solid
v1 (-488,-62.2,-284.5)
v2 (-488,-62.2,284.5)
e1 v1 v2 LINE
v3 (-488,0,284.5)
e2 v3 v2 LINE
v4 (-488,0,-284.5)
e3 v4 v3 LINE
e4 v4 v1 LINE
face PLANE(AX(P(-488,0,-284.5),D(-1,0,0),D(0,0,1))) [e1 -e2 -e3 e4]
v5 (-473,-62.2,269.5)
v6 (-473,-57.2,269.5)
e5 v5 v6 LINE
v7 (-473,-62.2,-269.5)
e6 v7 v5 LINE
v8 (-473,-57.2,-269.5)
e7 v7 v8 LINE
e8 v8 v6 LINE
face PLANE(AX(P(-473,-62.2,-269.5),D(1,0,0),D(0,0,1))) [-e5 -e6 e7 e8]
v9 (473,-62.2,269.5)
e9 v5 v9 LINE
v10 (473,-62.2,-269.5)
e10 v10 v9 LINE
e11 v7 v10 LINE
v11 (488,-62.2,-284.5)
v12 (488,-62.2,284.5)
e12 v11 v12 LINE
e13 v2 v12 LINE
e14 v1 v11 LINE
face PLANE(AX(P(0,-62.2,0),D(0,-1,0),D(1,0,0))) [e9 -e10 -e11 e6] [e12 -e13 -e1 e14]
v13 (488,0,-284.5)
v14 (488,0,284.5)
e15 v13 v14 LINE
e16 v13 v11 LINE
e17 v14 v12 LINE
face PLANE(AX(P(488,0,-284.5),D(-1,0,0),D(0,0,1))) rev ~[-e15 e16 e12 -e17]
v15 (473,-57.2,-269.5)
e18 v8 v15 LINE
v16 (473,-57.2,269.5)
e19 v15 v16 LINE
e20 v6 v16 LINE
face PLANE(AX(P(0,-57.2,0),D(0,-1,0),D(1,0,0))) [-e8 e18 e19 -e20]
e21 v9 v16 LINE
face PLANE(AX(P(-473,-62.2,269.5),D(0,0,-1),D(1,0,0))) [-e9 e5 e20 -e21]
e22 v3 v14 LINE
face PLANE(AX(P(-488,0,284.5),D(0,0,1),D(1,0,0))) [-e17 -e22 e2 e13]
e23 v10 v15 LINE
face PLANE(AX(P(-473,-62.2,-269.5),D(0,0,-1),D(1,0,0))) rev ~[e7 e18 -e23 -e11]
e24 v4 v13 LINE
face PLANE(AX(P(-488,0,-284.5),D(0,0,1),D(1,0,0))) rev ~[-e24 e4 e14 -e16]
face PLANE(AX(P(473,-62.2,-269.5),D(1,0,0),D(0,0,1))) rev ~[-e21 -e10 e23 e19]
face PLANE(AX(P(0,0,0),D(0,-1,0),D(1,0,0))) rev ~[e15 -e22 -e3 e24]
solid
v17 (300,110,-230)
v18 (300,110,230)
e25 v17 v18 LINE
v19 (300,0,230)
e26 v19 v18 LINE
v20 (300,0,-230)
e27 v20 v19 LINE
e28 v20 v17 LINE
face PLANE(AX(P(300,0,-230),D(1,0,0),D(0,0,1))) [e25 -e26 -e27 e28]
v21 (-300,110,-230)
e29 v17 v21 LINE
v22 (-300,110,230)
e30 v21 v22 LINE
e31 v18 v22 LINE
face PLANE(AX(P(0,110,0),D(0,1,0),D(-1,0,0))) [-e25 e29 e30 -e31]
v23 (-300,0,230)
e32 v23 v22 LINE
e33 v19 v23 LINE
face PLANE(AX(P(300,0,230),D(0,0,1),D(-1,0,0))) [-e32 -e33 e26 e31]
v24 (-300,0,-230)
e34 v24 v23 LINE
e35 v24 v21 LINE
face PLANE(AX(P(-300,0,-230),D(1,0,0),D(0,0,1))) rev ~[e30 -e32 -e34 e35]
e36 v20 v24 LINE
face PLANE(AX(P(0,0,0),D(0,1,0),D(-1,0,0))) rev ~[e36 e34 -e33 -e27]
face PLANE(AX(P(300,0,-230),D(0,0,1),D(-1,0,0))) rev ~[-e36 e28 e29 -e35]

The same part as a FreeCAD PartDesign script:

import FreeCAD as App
import Part
import Sketcher

V = App.Vector

doc = App.newDocument("Part")
body = doc.addObject("PartDesign::Body", "Body")

# Sketch on XZ plane
sketch1 = body.newObject("Sketcher::SketchObject", "Sketch")
sketch1.AttachmentSupport = (doc.getObject("XZ_Plane"), [""])
sketch1.MapMode = "FlatFace"
sketch1.addGeometry(Part.LineSegment(V(-488, 284, 0), V(-488, -284, 0)), False)
sketch1.addGeometry(Part.LineSegment(V(-488, -284, 0), V(488, -284, 0)), False)
sketch1.addGeometry(Part.LineSegment(V(488, -284, 0), V(488, 284, 0)), False)
sketch1.addGeometry(Part.LineSegment(V(488, 284, 0), V(-488, 284, 0)), False)
sketch1.addConstraint(Sketcher.Constraint("Coincident", 0, 2, 1, 1))
sketch1.addConstraint(Sketcher.Constraint("Coincident", 1, 2, 2, 1))
sketch1.addConstraint(Sketcher.Constraint("Coincident", 2, 2, 3, 1))
sketch1.addConstraint(Sketcher.Constraint("Coincident", 3, 2, 0, 1))
sketch1.addConstraint(Sketcher.Constraint("Vertical", 0))
sketch1.addConstraint(Sketcher.Constraint("Horizontal", 1))
sketch1.addConstraint(Sketcher.Constraint("Vertical", 2))
sketch1.addConstraint(Sketcher.Constraint("Horizontal", 3))
sketch1.addConstraint(Sketcher.Constraint("Symmetric", 0, 2, 2, 2, -1, 1))
sketch1.addConstraint(Sketcher.Constraint("DistanceX", 1, 1, 1, 2, 976.0))
sketch1.addConstraint(Sketcher.Constraint("DistanceY", 0, 2, 0, 1, 569.0))
pad1 = body.newObject("PartDesign::Pad", "Pad")
pad1.Profile = sketch1
pad1.Length = 62.2

# Sketch on XZ plane
sketch2 = body.newObject("Sketcher::SketchObject", "Sketch001")
sketch2.AttachmentSupport = (doc.getObject("XZ_Plane"), [""])
sketch2.MapMode = "FlatFace"
sketch2.AttachmentOffset = App.Placement(V(0, 0, 62.2), App.Rotation())
sketch2.addGeometry(Part.LineSegment(V(-473, 270, 0), V(-473, -270, 0)), False)
sketch2.addGeometry(Part.LineSegment(V(-473, -270, 0), V(473, -270, 0)), False)
sketch2.addGeometry(Part.LineSegment(V(473, -270, 0), V(473, 270, 0)), False)
sketch2.addGeometry(Part.LineSegment(V(473, 270, 0), V(-473, 270, 0)), False)
sketch2.addConstraint(Sketcher.Constraint("Coincident", 0, 2, 1, 1))
sketch2.addConstraint(Sketcher.Constraint("Coincident", 1, 2, 2, 1))
sketch2.addConstraint(Sketcher.Constraint("Coincident", 2, 2, 3, 1))
sketch2.addConstraint(Sketcher.Constraint("Coincident", 3, 2, 0, 1))
sketch2.addConstraint(Sketcher.Constraint("Vertical", 0))
sketch2.addConstraint(Sketcher.Constraint("Horizontal", 1))
sketch2.addConstraint(Sketcher.Constraint("Vertical", 2))
sketch2.addConstraint(Sketcher.Constraint("Horizontal", 3))
sketch2.addConstraint(Sketcher.Constraint("Symmetric", 0, 2, 2, 2, -1, 1))
sketch2.addConstraint(Sketcher.Constraint("DistanceX", 1, 1, 1, 2, 946.0))
sketch2.addConstraint(Sketcher.Constraint("DistanceY", 0, 2, 0, 1, 539.0))
pocket1 = body.newObject("PartDesign::Pocket", "Pocket")
pocket1.Profile = sketch2
pocket1.Length = 5
body2 = doc.addObject("PartDesign::Body", "Body001")

# Sketch on XZ plane
sketch3 = body2.newObject("Sketcher::SketchObject", "Sketch002")
sketch3.AttachmentSupport = (doc.getObject("XZ_Plane001"), [""])
sketch3.MapMode = "FlatFace"
sketch3.addGeometry(Part.LineSegment(V(300, 230, 0), V(300, -230, 0)), False)
sketch3.addGeometry(Part.LineSegment(V(300, -230, 0), V(-300, -230, 0)), False)
sketch3.addGeometry(Part.LineSegment(V(-300, -230, 0), V(-300, 230, 0)), False)
sketch3.addGeometry(Part.LineSegment(V(-300, 230, 0), V(300, 230, 0)), False)
sketch3.addConstraint(Sketcher.Constraint("Coincident", 0, 2, 1, 1))
sketch3.addConstraint(Sketcher.Constraint("Coincident", 1, 2, 2, 1))
sketch3.addConstraint(Sketcher.Constraint("Coincident", 2, 2, 3, 1))
sketch3.addConstraint(Sketcher.Constraint("Coincident", 3, 2, 0, 1))
sketch3.addConstraint(Sketcher.Constraint("Vertical", 0))
sketch3.addConstraint(Sketcher.Constraint("Horizontal", 1))
sketch3.addConstraint(Sketcher.Constraint("Vertical", 2))
sketch3.addConstraint(Sketcher.Constraint("Horizontal", 3))
sketch3.addConstraint(Sketcher.Constraint("Symmetric", 0, 2, 2, 2, -1, 1))
sketch3.addConstraint(Sketcher.Constraint("DistanceX", 1, 2, 1, 1, 600.0))
sketch3.addConstraint(Sketcher.Constraint("DistanceY", 0, 2, 0, 1, 460.0))
pad2 = body2.newObject("PartDesign::Pad", "Pad001")
pad2.Profile = sketch3
pad2.Length = 110
pad2.Reversed = True

doc.recompute()
